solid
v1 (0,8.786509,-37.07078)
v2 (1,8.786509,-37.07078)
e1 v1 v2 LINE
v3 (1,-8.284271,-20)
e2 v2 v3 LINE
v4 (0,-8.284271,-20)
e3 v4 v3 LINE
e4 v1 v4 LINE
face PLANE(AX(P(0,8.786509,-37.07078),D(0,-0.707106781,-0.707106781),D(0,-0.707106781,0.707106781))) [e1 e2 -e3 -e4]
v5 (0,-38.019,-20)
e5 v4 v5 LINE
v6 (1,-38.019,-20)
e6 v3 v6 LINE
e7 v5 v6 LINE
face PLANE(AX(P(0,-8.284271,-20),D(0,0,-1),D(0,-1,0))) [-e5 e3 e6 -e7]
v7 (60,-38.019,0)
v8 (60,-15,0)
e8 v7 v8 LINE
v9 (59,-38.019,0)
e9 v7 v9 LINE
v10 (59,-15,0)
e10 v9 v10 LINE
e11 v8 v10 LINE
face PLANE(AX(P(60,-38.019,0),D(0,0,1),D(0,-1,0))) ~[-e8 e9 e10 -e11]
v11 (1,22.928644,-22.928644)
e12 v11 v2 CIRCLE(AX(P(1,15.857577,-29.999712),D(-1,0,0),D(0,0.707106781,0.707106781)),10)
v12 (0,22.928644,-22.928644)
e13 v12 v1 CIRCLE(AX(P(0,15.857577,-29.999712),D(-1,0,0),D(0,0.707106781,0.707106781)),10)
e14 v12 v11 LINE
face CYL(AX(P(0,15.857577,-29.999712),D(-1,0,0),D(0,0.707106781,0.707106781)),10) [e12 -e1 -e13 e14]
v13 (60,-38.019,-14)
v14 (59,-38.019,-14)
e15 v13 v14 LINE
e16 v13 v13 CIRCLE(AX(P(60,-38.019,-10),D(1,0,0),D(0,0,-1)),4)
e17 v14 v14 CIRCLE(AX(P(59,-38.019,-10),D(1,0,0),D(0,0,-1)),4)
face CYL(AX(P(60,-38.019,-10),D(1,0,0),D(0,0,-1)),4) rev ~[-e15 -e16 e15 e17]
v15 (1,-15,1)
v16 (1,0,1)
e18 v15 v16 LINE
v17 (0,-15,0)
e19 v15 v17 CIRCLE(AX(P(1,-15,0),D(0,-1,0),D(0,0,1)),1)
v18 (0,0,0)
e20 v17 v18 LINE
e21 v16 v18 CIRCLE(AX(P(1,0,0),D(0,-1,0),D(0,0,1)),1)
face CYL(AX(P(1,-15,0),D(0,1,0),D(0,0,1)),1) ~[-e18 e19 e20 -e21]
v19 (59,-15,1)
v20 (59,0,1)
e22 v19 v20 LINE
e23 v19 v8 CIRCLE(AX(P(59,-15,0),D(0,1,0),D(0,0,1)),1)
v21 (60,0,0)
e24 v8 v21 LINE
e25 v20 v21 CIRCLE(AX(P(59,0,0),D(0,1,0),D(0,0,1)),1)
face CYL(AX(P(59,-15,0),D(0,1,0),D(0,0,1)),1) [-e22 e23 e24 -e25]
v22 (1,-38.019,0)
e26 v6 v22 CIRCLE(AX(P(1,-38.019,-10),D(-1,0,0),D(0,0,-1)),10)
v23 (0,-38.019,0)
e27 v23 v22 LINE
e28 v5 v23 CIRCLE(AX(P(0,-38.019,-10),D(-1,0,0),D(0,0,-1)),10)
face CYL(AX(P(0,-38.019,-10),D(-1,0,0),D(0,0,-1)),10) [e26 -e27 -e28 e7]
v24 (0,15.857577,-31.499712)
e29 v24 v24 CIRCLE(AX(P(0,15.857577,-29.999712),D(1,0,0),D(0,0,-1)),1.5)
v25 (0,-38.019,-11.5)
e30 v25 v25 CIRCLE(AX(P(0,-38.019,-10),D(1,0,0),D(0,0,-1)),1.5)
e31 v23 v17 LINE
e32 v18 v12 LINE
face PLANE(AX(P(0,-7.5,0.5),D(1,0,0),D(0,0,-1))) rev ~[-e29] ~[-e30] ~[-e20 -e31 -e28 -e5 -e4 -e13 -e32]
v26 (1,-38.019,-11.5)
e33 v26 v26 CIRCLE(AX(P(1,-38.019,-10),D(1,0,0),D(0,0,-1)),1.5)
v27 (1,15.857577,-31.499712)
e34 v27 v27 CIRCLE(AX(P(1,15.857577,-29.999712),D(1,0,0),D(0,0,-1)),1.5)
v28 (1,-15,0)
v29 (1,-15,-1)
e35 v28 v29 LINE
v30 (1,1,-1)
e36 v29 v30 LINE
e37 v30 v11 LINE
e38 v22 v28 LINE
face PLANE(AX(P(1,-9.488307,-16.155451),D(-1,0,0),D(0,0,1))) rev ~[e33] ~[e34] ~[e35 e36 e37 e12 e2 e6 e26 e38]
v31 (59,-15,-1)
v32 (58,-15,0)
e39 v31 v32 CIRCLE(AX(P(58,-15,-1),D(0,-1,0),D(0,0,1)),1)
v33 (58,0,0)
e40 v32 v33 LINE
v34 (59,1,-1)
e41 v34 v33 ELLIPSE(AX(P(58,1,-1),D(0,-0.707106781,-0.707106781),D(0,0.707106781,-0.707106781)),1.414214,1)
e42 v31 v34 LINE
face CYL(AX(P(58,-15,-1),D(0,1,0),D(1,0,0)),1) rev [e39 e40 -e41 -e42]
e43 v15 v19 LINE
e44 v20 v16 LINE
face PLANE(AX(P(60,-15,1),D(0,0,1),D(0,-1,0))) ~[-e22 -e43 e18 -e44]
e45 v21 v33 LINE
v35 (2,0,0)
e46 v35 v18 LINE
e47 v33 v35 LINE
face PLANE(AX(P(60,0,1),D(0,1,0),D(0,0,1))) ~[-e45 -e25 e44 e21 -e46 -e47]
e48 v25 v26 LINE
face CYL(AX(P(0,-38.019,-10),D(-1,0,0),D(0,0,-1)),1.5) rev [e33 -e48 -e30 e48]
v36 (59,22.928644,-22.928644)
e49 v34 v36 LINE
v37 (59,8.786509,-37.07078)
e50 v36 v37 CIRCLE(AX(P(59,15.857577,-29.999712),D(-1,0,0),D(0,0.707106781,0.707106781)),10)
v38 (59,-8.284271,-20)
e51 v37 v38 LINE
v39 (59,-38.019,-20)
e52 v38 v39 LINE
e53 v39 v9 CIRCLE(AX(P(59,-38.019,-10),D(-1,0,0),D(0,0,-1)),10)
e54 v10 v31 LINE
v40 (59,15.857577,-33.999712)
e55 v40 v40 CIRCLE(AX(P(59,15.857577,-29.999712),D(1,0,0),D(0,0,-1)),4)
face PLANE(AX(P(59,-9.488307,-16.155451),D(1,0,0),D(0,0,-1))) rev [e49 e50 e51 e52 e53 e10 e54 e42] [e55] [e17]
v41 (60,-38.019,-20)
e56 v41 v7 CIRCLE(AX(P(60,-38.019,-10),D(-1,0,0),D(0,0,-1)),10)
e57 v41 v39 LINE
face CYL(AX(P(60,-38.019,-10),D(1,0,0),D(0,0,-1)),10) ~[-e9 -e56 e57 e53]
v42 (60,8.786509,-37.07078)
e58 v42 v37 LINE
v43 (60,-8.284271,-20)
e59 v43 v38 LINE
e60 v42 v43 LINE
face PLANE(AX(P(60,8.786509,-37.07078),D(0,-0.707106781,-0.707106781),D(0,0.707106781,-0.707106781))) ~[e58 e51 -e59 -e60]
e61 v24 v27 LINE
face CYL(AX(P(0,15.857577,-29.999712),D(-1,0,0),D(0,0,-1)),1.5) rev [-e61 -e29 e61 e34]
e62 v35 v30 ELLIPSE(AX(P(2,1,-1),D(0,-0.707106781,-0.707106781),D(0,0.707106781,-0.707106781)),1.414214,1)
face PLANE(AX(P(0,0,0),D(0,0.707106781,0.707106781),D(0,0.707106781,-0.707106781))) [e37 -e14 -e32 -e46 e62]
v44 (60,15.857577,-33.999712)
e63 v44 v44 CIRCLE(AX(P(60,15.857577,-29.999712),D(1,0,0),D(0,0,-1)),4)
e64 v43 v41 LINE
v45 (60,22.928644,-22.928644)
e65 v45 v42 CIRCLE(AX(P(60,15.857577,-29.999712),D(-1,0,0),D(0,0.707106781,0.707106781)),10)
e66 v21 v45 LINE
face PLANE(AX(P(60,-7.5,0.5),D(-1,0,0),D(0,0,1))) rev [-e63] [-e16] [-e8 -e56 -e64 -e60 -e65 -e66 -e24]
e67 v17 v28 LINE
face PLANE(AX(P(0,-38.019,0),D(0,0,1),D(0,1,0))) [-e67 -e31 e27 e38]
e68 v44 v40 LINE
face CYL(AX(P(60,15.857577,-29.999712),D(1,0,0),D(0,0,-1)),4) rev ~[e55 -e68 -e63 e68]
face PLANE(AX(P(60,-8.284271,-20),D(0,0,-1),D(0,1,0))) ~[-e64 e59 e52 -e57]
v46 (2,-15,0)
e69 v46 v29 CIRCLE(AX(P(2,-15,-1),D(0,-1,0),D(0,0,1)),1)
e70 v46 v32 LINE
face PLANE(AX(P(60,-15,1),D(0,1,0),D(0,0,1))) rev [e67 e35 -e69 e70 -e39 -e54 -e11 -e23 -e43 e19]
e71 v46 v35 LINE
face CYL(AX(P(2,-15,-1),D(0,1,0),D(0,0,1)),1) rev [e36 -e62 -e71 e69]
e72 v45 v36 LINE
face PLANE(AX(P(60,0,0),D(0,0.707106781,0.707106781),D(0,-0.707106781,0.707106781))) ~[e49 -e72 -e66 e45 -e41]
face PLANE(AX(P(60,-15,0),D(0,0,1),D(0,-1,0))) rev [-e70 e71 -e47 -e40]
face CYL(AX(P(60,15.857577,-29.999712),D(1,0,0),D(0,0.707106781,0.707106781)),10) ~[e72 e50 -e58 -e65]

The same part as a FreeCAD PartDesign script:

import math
import FreeCAD as App
import Part
import Sketcher
Q = App.Units.Quantity


def edges_at(feature, points):
    """Names of the edges that pass closest to the given points."""
    edges = feature.Shape.Edges
    near = lambda p: min(range(len(edges)), key=lambda i: edges[i].distToShape(Part.Vertex(*p))[0])
    return sorted({f"Edge{near(p) + 1}" for p in points})


def add_polygon(sketch, points):
    """Adds a closed chain of lines whose ends are joined by coincident constraints."""
    first, n = sketch.GeometryCount, len(points)
    for a, b in zip(points, points[1:] + points[:1]):
        sketch.addGeometry(Part.LineSegment(App.Vector(*a, 0), App.Vector(*b, 0)), False)
    for i in range(n):
        sketch.addConstraint(Sketcher.Constraint("Coincident", first + i, 2, first + (i + 1) % n, 1))

doc = App.newDocument("Part")
body = doc.addObject("PartDesign::Body", "Body")

# Sketch on YZ plane
sketch1 = doc.addObject("Sketcher::SketchObject", "Sketch")
body.addObject(sketch1)
sketch1.AttachmentSupport = (doc.YZ_Plane, [""])
sketch1.MapMode = "FlatFace"
sketch1.addGeometry([
    Part.LineSegment(App.Vector(22.928644, -22.928644, 0), App.Vector(0, 0, 0)),  # 0
    Part.LineSegment(App.Vector(0, 0, 0), App.Vector(-38.019, 0, 0)),  # 1
    Part.ArcOfCircle(Part.Circle(App.Vector(-38.019, -10, 0), App.Vector(0, 0, 1), 10), math.radians(90), math.radians(270)),  # 2
    Part.LineSegment(App.Vector(-38.019, -20, 0), App.Vector(-8.284271, -20, 0)),  # 3
    Part.LineSegment(App.Vector(-8.284271, -20, 0), App.Vector(8.786509, -37.07078, 0)),  # 4
    Part.ArcOfCircle(Part.Circle(App.Vector(15.857577, -29.999712, 0), App.Vector(0, 0, 1), 10), math.radians(-135), math.radians(45)),  # 5
    Part.Circle(App.Vector(-38.019, -10, 0), App.Vector(0, 0, 1), 1.5),  # 6
    Part.Circle(App.Vector(15.857577, -29.999712, 0), App.Vector(0, 0, 1), 1.5),  # 7
], False)
sketch1.addConstraint([
    Sketcher.Constraint("Coincident", 0, 2, 1, 1),
    Sketcher.Constraint("Tangent", 1, 2, 2, 1),
    Sketcher.Constraint("Tangent", 2, 2, 3, 1),
    Sketcher.Constraint("Coincident", 3, 2, 4, 1),
    Sketcher.Constraint("Tangent", 4, 2, 5, 1),
    Sketcher.Constraint("Tangent", 5, 2, 0, 1),
    Sketcher.Constraint("Horizontal", 1),
    Sketcher.Constraint("Horizontal", 3),
    Sketcher.Constraint("Coincident", 0, 2, -1, 1),
    Sketcher.Constraint("Coincident", 6, 3, 2, 3),
    Sketcher.Constraint("Coincident", 7, 3, 5, 3),
    Sketcher.Constraint("Equal", 2, 5),
    Sketcher.Constraint("Equal", 6, 7),
    Sketcher.Constraint("Parallel", 0, 4),
    Sketcher.Constraint("Diameter", 6, 3.0),
    Sketcher.Constraint("Radius", 2, 10.0),
    Sketcher.Constraint("Angle", 0, Q("135 deg")),
    Sketcher.Constraint("DistanceX", 1, 2, 1, 1, 38.019),
    Sketcher.Constraint("Distance", 0, 32.426),
])
pad1 = doc.addObject("PartDesign::Pad", "Pad")
body.addObject(pad1)
pad1.Profile = sketch1
pad1.Length = 1

# Sketch on YZ plane
sketch2 = doc.addObject("Sketcher::SketchObject", "Sketch001")
body.addObject(sketch2)
sketch2.AttachmentSupport = (doc.YZ_Plane, [""])
sketch2.MapMode = "FlatFace"
add_polygon(sketch2, [(0, 1), (-15, 1), (-15, 0), (0, 0)])  # lines 0-3
sketch2.addConstraint([
    Sketcher.Constraint("Horizontal", 0),
    Sketcher.Constraint("Vertical", 1),
    Sketcher.Constraint("Horizontal", 2),
    Sketcher.Constraint("Vertical", 3),
    Sketcher.Constraint("Coincident", 2, 2, -1, 1),
    Sketcher.Constraint("DistanceX", 0, 2, 0, 1, 15.0),
    Sketcher.Constraint("DistanceY", 1, 2, 1, 1, 1.0),
])
pad2 = doc.addObject("PartDesign::Pad", "Pad001")
body.addObject(pad2)
pad2.Profile = sketch2
pad2.Length = 30
doc.recompute()

datumplane = doc.addObject("PartDesign::Plane", "DatumPlane")
body.addObject(datumplane)
datumplane.AttachmentSupport = (doc.YZ_Plane, [""])
datumplane.MapMode = "FlatFace"
datumplane.AttachmentOffset = App.Placement(App.Vector(0, 0, 30), App.Rotation())
mirrored = doc.addObject("PartDesign::Mirrored", "Mirrored")
body.addObject(mirrored)
mirrored.Originals = [pad1, pad2]
mirrored.MirrorPlane = (datumplane, [""])
body.Tip = mirrored
doc.recompute()

fillet = doc.addObject("PartDesign::Fillet", "Fillet")
body.addObject(fillet)
fillet.Base = (mirrored, edges_at(mirrored, [
    (1, -7.5, 0),
    (59, -7.5, 0),
    (0, -7.5, 1),
    (60, -7.5, 1),
]))
fillet.Radius = 1

# Sketch on YZ plane
sketch3 = doc.addObject("Sketcher::SketchObject", "Sketch002")
body.addObject(sketch3)
sketch3.AttachmentSupport = (doc.YZ_Plane, [""])
sketch3.MapMode = "FlatFace"
sketch3.AttachmentOffset = App.Placement(App.Vector(0, 0, 60), App.Rotation())
sketch3.addGeometry(Part.Circle(App.Vector(15.857577, -29.999712, 0), App.Vector(0, 0, 1), 4), False)
sketch3.addConstraint([
    Sketcher.Constraint("Diameter", 0, 8.0),
    Sketcher.Constraint("DistanceX", -1, 1, 0, 3, 15.857577),
    Sketcher.Constraint("DistanceY", 0, 3, -1, 1, 29.999712),
])
pocket1 = doc.addObject("PartDesign::Pocket", "Pocket")
body.addObject(pocket1)
pocket1.Profile = sketch3
pocket1.Length = 1

# Sketch on YZ plane
sketch4 = doc.addObject("Sketcher::SketchObject", "Sketch003")
body.addObject(sketch4)
sketch4.AttachmentSupport = (doc.YZ_Plane, [""])
sketch4.MapMode = "FlatFace"
sketch4.AttachmentOffset = App.Placement(App.Vector(0, 0, 60), App.Rotation())
sketch4.addGeometry(Part.Circle(App.Vector(-38.019, -10, 0), App.Vector(0, 0, 1), 4), False)
sketch4.addConstraint([
    Sketcher.Constraint("Diameter", 0, 8.0),
    Sketcher.Constraint("DistanceY", 0, 3, -1, 1, 10.0),
    Sketcher.Constraint("DistanceX", 0, 3, -1, 1, 38.019),
])
pocket2 = doc.addObject("PartDesign::Pocket", "Pocket001")
body.addObject(pocket2)
pocket2.Profile = sketch4
pocket2.Length = 1

doc.recompute()
